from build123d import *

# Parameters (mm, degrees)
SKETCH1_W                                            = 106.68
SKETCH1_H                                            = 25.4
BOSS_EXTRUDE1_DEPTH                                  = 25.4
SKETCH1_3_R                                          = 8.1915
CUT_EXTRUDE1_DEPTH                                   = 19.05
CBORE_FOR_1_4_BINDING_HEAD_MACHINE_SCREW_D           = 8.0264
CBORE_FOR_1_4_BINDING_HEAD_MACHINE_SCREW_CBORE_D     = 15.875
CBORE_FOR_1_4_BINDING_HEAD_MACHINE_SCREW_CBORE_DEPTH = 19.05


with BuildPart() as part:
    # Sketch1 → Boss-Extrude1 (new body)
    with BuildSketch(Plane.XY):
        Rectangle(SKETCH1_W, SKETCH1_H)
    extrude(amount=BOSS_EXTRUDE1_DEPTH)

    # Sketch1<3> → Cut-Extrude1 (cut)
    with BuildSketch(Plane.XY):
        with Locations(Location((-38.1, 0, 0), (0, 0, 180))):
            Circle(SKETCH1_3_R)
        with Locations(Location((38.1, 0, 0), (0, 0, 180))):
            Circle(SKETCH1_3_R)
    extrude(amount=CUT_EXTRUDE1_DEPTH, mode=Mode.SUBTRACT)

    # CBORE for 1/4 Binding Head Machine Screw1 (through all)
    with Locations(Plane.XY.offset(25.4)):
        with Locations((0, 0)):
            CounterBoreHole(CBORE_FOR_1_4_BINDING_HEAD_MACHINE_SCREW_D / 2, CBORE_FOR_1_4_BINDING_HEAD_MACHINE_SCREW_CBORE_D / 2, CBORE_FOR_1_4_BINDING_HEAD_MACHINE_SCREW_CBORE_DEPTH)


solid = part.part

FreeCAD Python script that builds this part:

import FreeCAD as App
import Part
import Sketcher

V = App.Vector
Q = App.Units.Quantity


def add_polygon(sketch, points):
    """Adds a closed chain of lines whose ends are joined by coincident constraints."""
    first, n = sketch.GeometryCount, len(points)
    for a, b in zip(points, points[1:] + points[:1]):
        sketch.addGeometry(Part.LineSegment(App.Vector(*a, 0), App.Vector(*b, 0)), False)
    for i in range(n):
        sketch.addConstraint(Sketcher.Constraint("Coincident", first + i, 2, first + (i + 1) % n, 1))

doc = App.newDocument("Part")
params = doc.addObject("Spreadsheet::Sheet", "Params")
for row, (alias, value) in enumerate([
    ("sketch1_height", "1 in"),
    ("sketch1_width", "4.2 in"),
    ("pad1_length", "1 in"),
    ("sketch2_diameter", "0.645 in"),
    ("pocket1_length", "0.75 in"),
    ("sketch3_diameter", "0.316 in"),
    ("hole_diameter", "0.316 in"),
    ("hole_cbore_diameter", "0.625 in"),
    ("hole_cbore_depth", "0.75 in"),
], start=1):
    params.set(f"A{row}", alias)
    params.set(f"B{row}", "=" + value)
    params.setAlias(f"B{row}", alias)

body = doc.addObject("PartDesign::Body", "Body")

sketch1 = body.newObject("Sketcher::SketchObject", "Sketch")
sketch1.AttachmentSupport = (doc.getObject("XY_Plane"), [""])
sketch1.MapMode = "FlatFace"
add_polygon(sketch1, [(-53, 13), (-53, -13), (53, -13), (53, 13)])
sketch1.addConstraint([
    Sketcher.Constraint("Vertical", 0),
    Sketcher.Constraint("Horizontal", 1),
    Sketcher.Constraint("Vertical", 2),
    Sketcher.Constraint("Horizontal", 3),
    Sketcher.Constraint("Symmetric", 0, 2, 2, 2, -1, 1),
    Sketcher.Constraint("DistanceY", 0, 2, 0, 1, Q("1 in")),
    Sketcher.Constraint("DistanceX", 1, 1, 1, 2, Q("4.2 in")),
])
sketch1.setExpression("Constraints[9]", "Params.sketch1_height")
sketch1.setExpression("Constraints[10]", "Params.sketch1_width")
pad1 = body.newObject("PartDesign::Pad", "Pad")
pad1.Profile = sketch1
pad1.setExpression("Length", "Params.pad1_length")

sketch2 = body.newObject("Sketcher::SketchObject", "Sketch001")
sketch2.AttachmentSupport = (doc.getObject("XY_Plane"), [""])
sketch2.MapMode = "FlatFace"
sketch2.addGeometry([
    Part.Circle(V(-38, 0, 0), V(0, 0, 1), 8),
    Part.Circle(V(38, 0, 0), V(0, 0, 1), 8),
], False)
sketch2.addConstraint([
    Sketcher.Constraint("Equal", 0, 1),
    Sketcher.Constraint("Symmetric", 0, 3, 1, 3, -1, 1),
    Sketcher.Constraint("PointOnObject", 0, 3, -1),
    Sketcher.Constraint("Diameter", 0, Q("0.645 in")),
    Sketcher.Constraint("DistanceX", 0, 3, 1, 3, Q("3 in")),
])
sketch2.setExpression("Constraints[3]", "Params.sketch2_diameter")
pocket1 = body.newObject("PartDesign::Pocket", "Pocket")
pocket1.Profile = sketch2
pocket1.setExpression("Length", "Params.pocket1_length")
pocket1.Reversed = True

sketch3 = body.newObject("Sketcher::SketchObject", "Sketch002")
sketch3.AttachmentSupport = (doc.getObject("XY_Plane"), [""])
sketch3.MapMode = "FlatFace"
sketch3.AttachmentOffset = App.Placement(V(0, 0, 1 * 25.4), App.Rotation())
sketch3.addGeometry(Part.Circle(V(0, 0, 0), V(0, 0, 1), 4), False)
sketch3.addConstraint([
    Sketcher.Constraint("Coincident", 0, 3, -1, 1),
    Sketcher.Constraint("Diameter", 0, Q("0.316 in")),
])
sketch3.setExpression("Constraints[1]", "Params.sketch3_diameter")
doc.recompute()
hole = body.newObject("PartDesign::Hole", "Hole")
hole.Profile = sketch3
hole.ThreadType = "None"
hole.setExpression("Diameter", "Params.hole_diameter")
hole.DepthType = "ThroughAll"
hole.HoleCutType = "Counterbore"
hole.setExpression("HoleCutDiameter", "Params.hole_cbore_diameter")
hole.setExpression("HoleCutDepth", "Params.hole_cbore_depth")

doc.recompute()
